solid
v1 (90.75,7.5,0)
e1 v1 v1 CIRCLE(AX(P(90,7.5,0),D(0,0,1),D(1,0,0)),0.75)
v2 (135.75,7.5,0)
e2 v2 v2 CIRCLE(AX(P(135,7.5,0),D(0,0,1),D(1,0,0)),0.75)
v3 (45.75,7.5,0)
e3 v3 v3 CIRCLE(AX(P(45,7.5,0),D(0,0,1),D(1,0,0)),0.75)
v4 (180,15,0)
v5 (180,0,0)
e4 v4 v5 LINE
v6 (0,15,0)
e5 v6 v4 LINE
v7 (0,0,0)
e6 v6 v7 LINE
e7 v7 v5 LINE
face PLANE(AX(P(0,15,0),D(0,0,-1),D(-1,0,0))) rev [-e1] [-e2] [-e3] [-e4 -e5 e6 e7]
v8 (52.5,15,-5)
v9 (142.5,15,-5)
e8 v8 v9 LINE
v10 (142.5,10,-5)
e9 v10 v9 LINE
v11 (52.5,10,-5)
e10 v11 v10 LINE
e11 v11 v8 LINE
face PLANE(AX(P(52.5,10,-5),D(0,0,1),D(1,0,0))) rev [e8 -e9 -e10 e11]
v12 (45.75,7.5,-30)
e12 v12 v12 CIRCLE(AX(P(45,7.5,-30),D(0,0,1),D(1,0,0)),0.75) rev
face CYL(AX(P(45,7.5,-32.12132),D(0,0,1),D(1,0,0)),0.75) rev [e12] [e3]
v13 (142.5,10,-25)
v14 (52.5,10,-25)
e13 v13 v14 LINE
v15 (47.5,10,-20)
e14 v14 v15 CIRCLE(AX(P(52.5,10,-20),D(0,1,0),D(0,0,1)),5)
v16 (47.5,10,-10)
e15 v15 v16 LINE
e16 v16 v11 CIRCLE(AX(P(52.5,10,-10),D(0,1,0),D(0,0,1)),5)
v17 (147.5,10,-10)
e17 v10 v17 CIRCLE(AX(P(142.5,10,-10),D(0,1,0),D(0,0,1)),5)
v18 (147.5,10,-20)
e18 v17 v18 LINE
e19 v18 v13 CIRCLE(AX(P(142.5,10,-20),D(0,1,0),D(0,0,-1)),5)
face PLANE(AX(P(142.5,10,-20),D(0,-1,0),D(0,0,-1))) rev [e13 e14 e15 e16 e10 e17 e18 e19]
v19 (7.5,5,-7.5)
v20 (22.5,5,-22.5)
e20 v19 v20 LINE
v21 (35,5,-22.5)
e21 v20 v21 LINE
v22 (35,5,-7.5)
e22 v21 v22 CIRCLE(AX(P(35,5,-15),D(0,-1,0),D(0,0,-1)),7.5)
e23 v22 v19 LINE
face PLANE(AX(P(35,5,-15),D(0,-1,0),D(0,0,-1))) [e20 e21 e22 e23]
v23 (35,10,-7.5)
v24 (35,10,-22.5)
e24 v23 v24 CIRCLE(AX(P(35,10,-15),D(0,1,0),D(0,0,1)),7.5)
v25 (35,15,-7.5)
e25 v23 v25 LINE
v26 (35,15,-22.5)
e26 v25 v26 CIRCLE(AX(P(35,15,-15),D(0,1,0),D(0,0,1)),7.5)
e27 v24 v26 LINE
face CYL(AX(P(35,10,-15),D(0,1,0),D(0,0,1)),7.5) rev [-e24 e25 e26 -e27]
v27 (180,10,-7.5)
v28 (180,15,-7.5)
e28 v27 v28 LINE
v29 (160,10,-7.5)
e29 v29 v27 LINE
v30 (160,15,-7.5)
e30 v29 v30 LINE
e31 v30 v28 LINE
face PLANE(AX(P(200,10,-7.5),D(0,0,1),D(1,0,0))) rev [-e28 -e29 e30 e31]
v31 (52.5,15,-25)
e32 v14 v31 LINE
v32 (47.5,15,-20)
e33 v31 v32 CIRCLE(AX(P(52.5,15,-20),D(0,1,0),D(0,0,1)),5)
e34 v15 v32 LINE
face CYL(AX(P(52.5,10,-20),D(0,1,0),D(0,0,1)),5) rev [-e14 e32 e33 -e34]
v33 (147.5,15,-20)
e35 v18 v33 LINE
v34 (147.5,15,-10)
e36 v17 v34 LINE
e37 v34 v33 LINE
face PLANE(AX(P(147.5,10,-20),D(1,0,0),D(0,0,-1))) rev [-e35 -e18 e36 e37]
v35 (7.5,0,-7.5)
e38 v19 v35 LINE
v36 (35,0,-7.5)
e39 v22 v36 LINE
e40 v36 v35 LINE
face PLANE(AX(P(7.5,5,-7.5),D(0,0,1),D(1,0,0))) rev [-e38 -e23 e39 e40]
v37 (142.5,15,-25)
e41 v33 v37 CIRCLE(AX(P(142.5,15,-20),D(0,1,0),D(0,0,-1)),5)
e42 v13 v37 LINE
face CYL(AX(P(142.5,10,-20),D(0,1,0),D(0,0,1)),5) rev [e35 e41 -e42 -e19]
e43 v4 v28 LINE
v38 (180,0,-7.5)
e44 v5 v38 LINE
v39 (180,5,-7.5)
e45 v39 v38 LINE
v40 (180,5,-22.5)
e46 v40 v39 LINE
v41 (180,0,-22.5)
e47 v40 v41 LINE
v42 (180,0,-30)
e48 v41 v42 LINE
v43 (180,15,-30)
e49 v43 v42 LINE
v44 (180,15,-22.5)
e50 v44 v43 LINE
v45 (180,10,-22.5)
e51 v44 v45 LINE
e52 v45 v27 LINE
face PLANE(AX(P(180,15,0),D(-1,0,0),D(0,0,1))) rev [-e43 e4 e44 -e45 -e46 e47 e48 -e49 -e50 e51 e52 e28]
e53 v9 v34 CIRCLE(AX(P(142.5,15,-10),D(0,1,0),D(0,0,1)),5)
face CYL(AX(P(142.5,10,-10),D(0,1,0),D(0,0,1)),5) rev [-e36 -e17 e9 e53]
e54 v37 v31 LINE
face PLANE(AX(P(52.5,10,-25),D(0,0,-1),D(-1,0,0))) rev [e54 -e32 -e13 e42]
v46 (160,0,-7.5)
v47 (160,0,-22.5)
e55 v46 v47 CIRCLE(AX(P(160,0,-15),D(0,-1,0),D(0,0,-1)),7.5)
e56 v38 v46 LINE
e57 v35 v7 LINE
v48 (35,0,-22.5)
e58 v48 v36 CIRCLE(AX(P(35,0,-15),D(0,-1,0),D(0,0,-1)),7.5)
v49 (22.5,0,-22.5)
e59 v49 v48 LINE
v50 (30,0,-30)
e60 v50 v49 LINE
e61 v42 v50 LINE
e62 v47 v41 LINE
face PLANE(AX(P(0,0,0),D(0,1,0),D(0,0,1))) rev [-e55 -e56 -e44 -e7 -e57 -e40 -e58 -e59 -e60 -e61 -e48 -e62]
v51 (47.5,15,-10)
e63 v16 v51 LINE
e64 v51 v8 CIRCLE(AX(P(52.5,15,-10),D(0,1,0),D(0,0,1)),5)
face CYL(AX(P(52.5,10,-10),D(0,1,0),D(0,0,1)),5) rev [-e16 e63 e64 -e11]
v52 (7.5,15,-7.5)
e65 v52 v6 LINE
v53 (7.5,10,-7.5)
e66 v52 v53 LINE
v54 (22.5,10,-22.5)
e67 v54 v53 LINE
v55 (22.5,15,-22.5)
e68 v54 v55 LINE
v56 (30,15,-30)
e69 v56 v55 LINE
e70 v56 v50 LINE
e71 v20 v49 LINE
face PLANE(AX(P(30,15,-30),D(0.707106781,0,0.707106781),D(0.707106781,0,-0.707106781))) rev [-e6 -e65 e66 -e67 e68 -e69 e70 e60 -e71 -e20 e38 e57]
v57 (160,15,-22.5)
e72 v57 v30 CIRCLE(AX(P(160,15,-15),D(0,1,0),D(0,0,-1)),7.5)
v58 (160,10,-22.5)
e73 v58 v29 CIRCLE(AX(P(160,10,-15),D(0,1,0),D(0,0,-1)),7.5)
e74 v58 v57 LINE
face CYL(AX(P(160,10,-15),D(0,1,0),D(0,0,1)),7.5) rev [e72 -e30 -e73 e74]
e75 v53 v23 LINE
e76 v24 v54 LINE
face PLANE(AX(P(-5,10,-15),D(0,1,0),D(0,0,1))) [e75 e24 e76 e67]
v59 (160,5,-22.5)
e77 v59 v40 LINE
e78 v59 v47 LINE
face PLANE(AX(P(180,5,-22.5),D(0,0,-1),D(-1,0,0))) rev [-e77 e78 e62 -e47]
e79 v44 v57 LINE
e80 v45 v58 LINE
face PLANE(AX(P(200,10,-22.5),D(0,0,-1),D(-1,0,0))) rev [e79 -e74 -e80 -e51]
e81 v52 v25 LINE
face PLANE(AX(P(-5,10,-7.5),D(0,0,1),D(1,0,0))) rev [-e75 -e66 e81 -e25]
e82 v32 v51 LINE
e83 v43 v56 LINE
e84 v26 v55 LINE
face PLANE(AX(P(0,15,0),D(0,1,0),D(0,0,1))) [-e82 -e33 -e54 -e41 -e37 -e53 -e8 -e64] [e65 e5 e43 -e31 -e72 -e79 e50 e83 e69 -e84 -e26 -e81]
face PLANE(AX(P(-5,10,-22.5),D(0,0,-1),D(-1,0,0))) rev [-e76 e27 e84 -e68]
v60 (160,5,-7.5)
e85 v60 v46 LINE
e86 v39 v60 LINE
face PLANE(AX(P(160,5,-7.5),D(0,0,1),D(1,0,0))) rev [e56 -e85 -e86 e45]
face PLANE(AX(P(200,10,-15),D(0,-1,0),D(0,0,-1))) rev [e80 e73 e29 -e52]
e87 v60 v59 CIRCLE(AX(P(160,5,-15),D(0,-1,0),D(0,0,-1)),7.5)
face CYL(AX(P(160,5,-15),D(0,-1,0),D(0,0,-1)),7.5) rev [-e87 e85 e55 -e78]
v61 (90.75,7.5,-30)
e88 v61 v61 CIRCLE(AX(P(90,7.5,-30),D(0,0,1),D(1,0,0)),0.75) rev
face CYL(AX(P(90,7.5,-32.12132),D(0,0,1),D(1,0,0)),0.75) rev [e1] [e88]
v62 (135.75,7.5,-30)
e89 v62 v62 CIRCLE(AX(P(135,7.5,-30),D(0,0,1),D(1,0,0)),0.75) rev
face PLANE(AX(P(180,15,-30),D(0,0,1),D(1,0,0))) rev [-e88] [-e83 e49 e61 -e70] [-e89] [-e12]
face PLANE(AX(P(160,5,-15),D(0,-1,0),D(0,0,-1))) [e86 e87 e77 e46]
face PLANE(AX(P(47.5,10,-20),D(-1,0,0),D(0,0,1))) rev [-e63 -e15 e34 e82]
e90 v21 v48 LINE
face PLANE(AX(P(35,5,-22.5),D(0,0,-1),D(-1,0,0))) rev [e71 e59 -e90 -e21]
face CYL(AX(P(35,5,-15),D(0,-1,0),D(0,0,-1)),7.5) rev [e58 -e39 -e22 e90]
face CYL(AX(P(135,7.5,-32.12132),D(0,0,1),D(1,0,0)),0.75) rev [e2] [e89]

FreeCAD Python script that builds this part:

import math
import FreeCAD as App
import Part
import Sketcher
Q = App.Units.Quantity


def add_polygon(sketch, points):
    """Adds a closed chain of lines whose ends are joined by coincident constraints."""
    first, n = sketch.GeometryCount, len(points)
    for a, b in zip(points, points[1:] + points[:1]):
        sketch.addGeometry(Part.LineSegment(App.Vector(*a, 0), App.Vector(*b, 0)), False)
    for i in range(n):
        sketch.addConstraint(Sketcher.Constraint("Coincident", first + i, 2, first + (i + 1) % n, 1))

doc = App.newDocument("Part")
body = doc.addObject("PartDesign::Body", "Body")

sketch1 = body.newObject("Sketcher::SketchObject", "Sketch")
sketch1.AttachmentSupport = (doc.getObject("XZ_Plane"), [""])
sketch1.MapMode = "FlatFace"
add_polygon(sketch1, [(0, 0), (180, 0), (180, -30), (30, -30)])
sketch1.addConstraint(Sketcher.Constraint("Horizontal", 0))
sketch1.addConstraint(Sketcher.Constraint("Vertical", 1))
sketch1.addConstraint(Sketcher.Constraint("Horizontal", 2))
sketch1.addConstraint(Sketcher.Constraint("Coincident", 3, 2, -1, 1))
sketch1.addConstraint(Sketcher.Constraint("DistanceX", 0, 1, 0, 2, Q("180 mm")))
sketch1.addConstraint(Sketcher.Constraint("DistanceX", 2, 2, 2, 1, Q("150 mm")))
sketch1.addConstraint(Sketcher.Constraint("DistanceY", 1, 2, 1, 1, Q("30 mm")))
pad1 = body.newObject("PartDesign::Pad", "Pad")
pad1.Profile = sketch1
pad1.Length = 15
pad1.Reversed = True

sketch2 = body.newObject("Sketcher::SketchObject", "Sketch001")
sketch2.AttachmentSupport = (doc.getObject("XZ_Plane"), [""])
sketch2.MapMode = "FlatFace"
sketch2.AttachmentOffset = App.Placement(App.Vector(0, 0, -15), App.Rotation())
sketch2.addGeometry(Part.LineSegment(App.Vector(35, -22.5, 0), App.Vector(-5, -22.5, 0)), False)
sketch2.addGeometry(Part.ArcOfCircle(Part.Circle(App.Vector(-5, -15, 0), App.Vector(0, 0, 1), 7.5), math.radians(90), math.radians(270)), False)
sketch2.addGeometry(Part.LineSegment(App.Vector(-5, -7.5, 0), App.Vector(35, -7.5, 0)), False)
sketch2.addGeometry(Part.ArcOfCircle(Part.Circle(App.Vector(35, -15, 0), App.Vector(0, 0, 1), 7.5), math.radians(-90), math.radians(90)), False)
sketch2.addGeometry(Part.LineSegment(App.Vector(200, -22.5, 0), App.Vector(160, -22.5, 0)), False)
sketch2.addGeometry(Part.ArcOfCircle(Part.Circle(App.Vector(160, -15, 0), App.Vector(0, 0, 1), 7.5), math.radians(90), math.radians(270)), False)
sketch2.addGeometry(Part.LineSegment(App.Vector(160, -7.5, 0), App.Vector(200, -7.5, 0)), False)
sketch2.addGeometry(Part.ArcOfCircle(Part.Circle(App.Vector(200, -15, 0), App.Vector(0, 0, 1), 7.5), math.radians(-90), math.radians(90)), False)
sketch2.addConstraint(Sketcher.Constraint("Tangent", 0, 2, 1, 2))
sketch2.addConstraint(Sketcher.Constraint("Tangent", 1, 1, 2, 1))
sketch2.addConstraint(Sketcher.Constraint("Tangent", 2, 2, 3, 2))
sketch2.addConstraint(Sketcher.Constraint("Tangent", 3, 1, 0, 1))
sketch2.addConstraint(Sketcher.Constraint("Tangent", 4, 2, 5, 2))
sketch2.addConstraint(Sketcher.Constraint("Tangent", 5, 1, 6, 1))
sketch2.addConstraint(Sketcher.Constraint("Tangent", 6, 2, 7, 2))
sketch2.addConstraint(Sketcher.Constraint("Tangent", 7, 1, 4, 1))
sketch2.addConstraint(Sketcher.Constraint("Horizontal", 0))
sketch2.addConstraint(Sketcher.Constraint("Horizontal", 2))
sketch2.addConstraint(Sketcher.Constraint("Horizontal", 4))
sketch2.addConstraint(Sketcher.Constraint("Horizontal", 6))
sketch2.addConstraint(Sketcher.Constraint("Equal", 3, 5))
sketch2.addConstraint(Sketcher.Constraint("Horizontal", 3, 3, 5, 3))
sketch2.addConstraint(Sketcher.Constraint("Equal", 2, 4))
sketch2.addConstraint(Sketcher.Constraint("Radius", 1, Q("7.5 mm")))
sketch2.addConstraint(Sketcher.Constraint("DistanceX", 0, 2, 0, 1, Q("40 mm")))
sketch2.addConstraint(Sketcher.Constraint("DistanceX", 1, 3, -1, 1, Q("5 mm")))
sketch2.addConstraint(Sketcher.Constraint("DistanceY", 1, 3, -1, 1, Q("15 mm")))
sketch2.addConstraint(Sketcher.Constraint("DistanceX", -1, 1, 5, 3, Q("160 mm")))
pocket1 = body.newObject("PartDesign::Pocket", "Pocket")
pocket1.Profile = sketch2
pocket1.Length = 5
pocket1.Reversed = True

sketch3 = body.newObject("Sketcher::SketchObject", "Sketch002")
sketch3.AttachmentSupport = (doc.getObject("XZ_Plane"), [""])
sketch3.MapMode = "FlatFace"
sketch3.addGeometry(Part.LineSegment(App.Vector(7.5, -7.5, 0), App.Vector(22.5, -22.5, 0)), False)
sketch3.addGeometry(Part.LineSegment(App.Vector(22.5, -22.5, 0), App.Vector(35, -22.5, 0)), False)
sketch3.addGeometry(Part.ArcOfCircle(Part.Circle(App.Vector(35, -15, 0), App.Vector(0, 0, 1), 7.5), math.radians(-90), math.radians(90)), False)
sketch3.addGeometry(Part.LineSegment(App.Vector(35, -7.5, 0), App.Vector(7.5, -7.5, 0)), False)
sketch3.addGeometry(Part.LineSegment(App.Vector(180, -22.5, 0), App.Vector(180, -7.5, 0)), False)
sketch3.addGeometry(Part.LineSegment(App.Vector(180, -7.5, 0), App.Vector(160, -7.5, 0)), False)
sketch3.addGeometry(Part.ArcOfCircle(Part.Circle(App.Vector(160, -15, 0), App.Vector(0, 0, 1), 7.5), math.radians(90), math.radians(270)), False)
sketch3.addGeometry(Part.LineSegment(App.Vector(160, -22.5, 0), App.Vector(180, -22.5, 0)), False)
sketch3.addConstraint(Sketcher.Constraint("Coincident", 0, 2, 1, 1))
sketch3.addConstraint(Sketcher.Constraint("Tangent", 1, 2, 2, 1))
sketch3.addConstraint(Sketcher.Constraint("Tangent", 2, 2, 3, 1))
sketch3.addConstraint(Sketcher.Constraint("Coincident", 3, 2, 0, 1))
sketch3.addConstraint(Sketcher.Constraint("Coincident", 4, 2, 5, 1))
sketch3.addConstraint(Sketcher.Constraint("Tangent", 5, 2, 6, 1))
sketch3.addConstraint(Sketcher.Constraint("Tangent", 6, 2, 7, 1))
sketch3.addConstraint(Sketcher.Constraint("Coincident", 7, 2, 4, 1))
sketch3.addConstraint(Sketcher.Constraint("Horizontal", 1))
sketch3.addConstraint(Sketcher.Constraint("Horizontal", 3))
sketch3.addConstraint(Sketcher.Constraint("Vertical", 4))
sketch3.addConstraint(Sketcher.Constraint("Horizontal", 5))
sketch3.addConstraint(Sketcher.Constraint("Horizontal", 7))
sketch3.addConstraint(Sketcher.Constraint("Equal", 2, 6))
sketch3.addConstraint(Sketcher.Constraint("Horizontal", 2, 3, 6, 3))
sketch3.addConstraint(Sketcher.Constraint("Radius", 2, Q("7.5 mm")))
sketch3.addConstraint(Sketcher.Constraint("DistanceX", 5, 2, 5, 1, Q("20 mm")))
sketch3.addConstraint(Sketcher.Constraint("Angle", 0, Q("-45 deg")))
sketch3.addConstraint(Sketcher.Constraint("DistanceX", 1, 1, 1, 2, Q("12.5 mm")))
sketch3.addConstraint(Sketcher.Constraint("DistanceX", -1, 1, 2, 3, Q("35 mm")))
sketch3.addConstraint(Sketcher.Constraint("DistanceY", 2, 3, -1, 1, Q("15 mm")))
sketch3.addConstraint(Sketcher.Constraint("DistanceX", -1, 1, 6, 3, Q("160 mm")))
pocket2 = body.newObject("PartDesign::Pocket", "Pocket001")
pocket2.Profile = sketch3
pocket2.Length = 5

sketch4 = body.newObject("Sketcher::SketchObject", "Sketch003")
sketch4.AttachmentSupport = (doc.getObject("XY_Plane"), [""])
sketch4.MapMode = "FlatFace"
sketch4.addGeometry(Part.Circle(App.Vector(90, 7.5, 0), App.Vector(0, 0, 1), 0.75), False)
sketch4.addGeometry(Part.Circle(App.Vector(45, 7.5, 0), App.Vector(0, 0, 1), 0.75), False)
sketch4.addGeometry(Part.Circle(App.Vector(135, 7.5, 0), App.Vector(0, 0, 1), 0.75), False)
sketch4.addConstraint(Sketcher.Constraint("Equal", 0, 1))
sketch4.addConstraint(Sketcher.Constraint("Equal", 1, 2))
sketch4.addConstraint(Sketcher.Constraint("Horizontal", 0, 3, 1, 3))
sketch4.addConstraint(Sketcher.Constraint("Horizontal", 1, 3, 2, 3))
sketch4.addConstraint(Sketcher.Constraint("Diameter", 0, Q("1.5 mm")))
sketch4.addConstraint(Sketcher.Constraint("DistanceX", -1, 1, 0, 3, Q("90 mm")))
sketch4.addConstraint(Sketcher.Constraint("DistanceX", -1, 1, 1, 3, Q("45 mm")))
sketch4.addConstraint(Sketcher.Constraint("DistanceX", -1, 1, 2, 3, Q("135 mm")))
sketch4.addConstraint(Sketcher.Constraint("DistanceY", -1, 1, 0, 3, Q("7.5 mm")))
pocket3 = body.newObject("PartDesign::Pocket", "Pocket002")
pocket3.Profile = sketch4
pocket3.Length = 30

sketch5 = body.newObject("Sketcher::SketchObject", "Sketch004")
sketch5.AttachmentSupport = (doc.getObject("XZ_Plane"), [""])
sketch5.MapMode = "FlatFace"
sketch5.AttachmentOffset = App.Placement(App.Vector(0, 0, -15), App.Rotation())
sketch5.addGeometry(Part.LineSegment(App.Vector(142.5, -25, 0), App.Vector(52.5, -25, 0)), False)
sketch5.addGeometry(Part.ArcOfCircle(Part.Circle(App.Vector(52.5, -20, 0), App.Vector(0, 0, 1), 5), math.radians(180), math.radians(270)), False)
sketch5.addGeometry(Part.LineSegment(App.Vector(47.5, -20, 0), App.Vector(47.5, -10, 0)), False)
sketch5.addGeometry(Part.ArcOfCircle(Part.Circle(App.Vector(52.5, -10, 0), App.Vector(0, 0, 1), 5), math.radians(90), math.radians(180)), False)
sketch5.addGeometry(Part.LineSegment(App.Vector(52.5, -5, 0), App.Vector(142.5, -5, 0)), False)
sketch5.addGeometry(Part.ArcOfCircle(Part.Circle(App.Vector(142.5, -10, 0), App.Vector(0, 0, 1), 5), math.radians(0), math.radians(90)), False)
sketch5.addGeometry(Part.LineSegment(App.Vector(147.5, -10, 0), App.Vector(147.5, -20, 0)), False)
sketch5.addGeometry(Part.ArcOfCircle(Part.Circle(App.Vector(142.5, -20, 0), App.Vector(0, 0, 1), 5), math.radians(-90), math.radians(0)), False)
sketch5.addConstraint(Sketcher.Constraint("Tangent", 0, 2, 1, 2))
sketch5.addConstraint(Sketcher.Constraint("Tangent", 1, 1, 2, 1))
sketch5.addConstraint(Sketcher.Constraint("Tangent", 2, 2, 3, 2))
sketch5.addConstraint(Sketcher.Constraint("Tangent", 3, 1, 4, 1))
sketch5.addConstraint(Sketcher.Constraint("Tangent", 4, 2, 5, 2))
sketch5.addConstraint(Sketcher.Constraint("Tangent", 5, 1, 6, 1))
sketch5.addConstraint(Sketcher.Constraint("Tangent", 6, 2, 7, 2))
sketch5.addConstraint(Sketcher.Constraint("Tangent", 7, 1, 0, 1))
sketch5.addConstraint(Sketcher.Constraint("Horizontal", 0))
sketch5.addConstraint(Sketcher.Constraint("Vertical", 2))
sketch5.addConstraint(Sketcher.Constraint("Horizontal", 4))
sketch5.addConstraint(Sketcher.Constraint("Vertical", 6))
sketch5.addConstraint(Sketcher.Constraint("Equal", 1, 3))
sketch5.addConstraint(Sketcher.Constraint("Equal", 3, 5))
sketch5.addConstraint(Sketcher.Constraint("Equal", 5, 7))
sketch5.addConstraint(Sketcher.Constraint("Radius", 1, Q("5 mm")))
sketch5.addConstraint(Sketcher.Constraint("DistanceX", 0, 2, 0, 1, Q("90 mm")))
sketch5.addConstraint(Sketcher.Constraint("DistanceY", 2, 1, 2, 2, Q("10 mm")))
sketch5.addConstraint(Sketcher.Constraint("DistanceY", 1, 3, -1, 1, Q("20 mm")))
sketch5.addConstraint(Sketcher.Constraint("DistanceX", -1, 1, 1, 3, Q("52.5 mm")))
pocket4 = body.newObject("PartDesign::Pocket", "Pocket003")
pocket4.Profile = sketch5
pocket4.Length = 5
pocket4.Reversed = True

doc.recompute()
